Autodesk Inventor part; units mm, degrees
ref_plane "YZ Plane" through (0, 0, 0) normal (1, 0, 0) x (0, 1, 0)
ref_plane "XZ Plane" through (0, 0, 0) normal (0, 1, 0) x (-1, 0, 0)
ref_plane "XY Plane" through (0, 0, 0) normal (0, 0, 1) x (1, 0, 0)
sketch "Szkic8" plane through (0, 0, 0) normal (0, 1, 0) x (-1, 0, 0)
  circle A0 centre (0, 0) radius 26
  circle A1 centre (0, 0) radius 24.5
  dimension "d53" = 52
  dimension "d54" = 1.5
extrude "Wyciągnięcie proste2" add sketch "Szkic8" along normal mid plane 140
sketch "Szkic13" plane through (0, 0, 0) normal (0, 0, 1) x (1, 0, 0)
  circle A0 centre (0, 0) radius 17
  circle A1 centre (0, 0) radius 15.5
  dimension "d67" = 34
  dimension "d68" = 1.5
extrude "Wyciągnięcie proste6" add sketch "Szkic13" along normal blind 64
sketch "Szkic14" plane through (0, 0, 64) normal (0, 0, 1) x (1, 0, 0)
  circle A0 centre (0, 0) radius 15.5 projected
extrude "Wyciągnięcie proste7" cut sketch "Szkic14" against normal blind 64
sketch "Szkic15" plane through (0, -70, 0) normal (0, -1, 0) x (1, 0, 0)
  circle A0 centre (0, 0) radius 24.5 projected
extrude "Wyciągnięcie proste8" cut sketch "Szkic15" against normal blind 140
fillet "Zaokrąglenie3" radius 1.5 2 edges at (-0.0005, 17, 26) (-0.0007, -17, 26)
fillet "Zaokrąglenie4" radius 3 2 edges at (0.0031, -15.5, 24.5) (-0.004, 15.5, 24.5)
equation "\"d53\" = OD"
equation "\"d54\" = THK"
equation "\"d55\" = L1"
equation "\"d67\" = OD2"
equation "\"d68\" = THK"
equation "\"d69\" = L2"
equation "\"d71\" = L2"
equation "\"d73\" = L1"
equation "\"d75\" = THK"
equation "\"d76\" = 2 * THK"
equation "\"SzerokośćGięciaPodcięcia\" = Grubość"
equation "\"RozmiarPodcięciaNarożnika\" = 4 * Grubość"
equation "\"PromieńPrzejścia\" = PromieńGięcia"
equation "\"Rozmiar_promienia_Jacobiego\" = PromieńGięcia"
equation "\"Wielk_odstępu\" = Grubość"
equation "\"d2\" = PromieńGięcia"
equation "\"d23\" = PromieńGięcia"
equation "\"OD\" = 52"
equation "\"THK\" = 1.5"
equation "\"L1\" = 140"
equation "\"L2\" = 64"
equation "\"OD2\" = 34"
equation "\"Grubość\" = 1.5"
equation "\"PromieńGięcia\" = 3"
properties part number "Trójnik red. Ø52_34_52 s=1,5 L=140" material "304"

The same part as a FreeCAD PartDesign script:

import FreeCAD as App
import Part
import Sketcher
from FreeCAD import Vector
Q = App.Units.Quantity


def edges_at(feature, points):
    """Names of the edges that pass closest to the given points."""
    edges = feature.Shape.Edges
    near = lambda p: min(range(len(edges)), key=lambda i: edges[i].distToShape(Part.Vertex(*p))[0])
    return sorted({f"Edge{near(p) + 1}" for p in points})

doc = App.newDocument("Part")
body = doc.addObject("PartDesign::Body", "Body")

# Sketch on XZ plane
sketch1 = body.newObject("Sketcher::SketchObject", "Sketch")
sketch1.AttachmentSupport = (doc.getObject("XZ_Plane"), [""])
sketch1.MapMode = "FlatFace"
sketch1.addGeometry(Part.Circle(Vector(0, 0, 0), Vector(0, 0, 1), 26), False)
sketch1.addGeometry(Part.Circle(Vector(0, 0, 0), Vector(0, 0, 1), 24), False)
sketch1.addConstraint(Sketcher.Constraint("Coincident", 0, 3, -1, 1))
sketch1.addConstraint(Sketcher.Constraint("Coincident", 1, 3, -1, 1))
sketch1.addConstraint(Sketcher.Constraint("Diameter", 0, Q("52 mm")))
sketch1.addConstraint(Sketcher.Constraint("Diameter", 1, Q("49 mm")))
pad1 = body.newObject("PartDesign::Pad", "Pad")
pad1.Profile = sketch1
pad1.Length = 140
pad1.Midplane = True

# Sketch on XY plane
sketch2 = body.newObject("Sketcher::SketchObject", "Sketch001")
sketch2.AttachmentSupport = (doc.getObject("XY_Plane"), [""])
sketch2.MapMode = "FlatFace"
sketch2.addGeometry(Part.Circle(Vector(0, 0, 0), Vector(0, 0, 1), 17), False)
sketch2.addGeometry(Part.Circle(Vector(0, 0, 0), Vector(0, 0, 1), 16), False)
sketch2.addConstraint(Sketcher.Constraint("Coincident", 0, 3, -1, 1))
sketch2.addConstraint(Sketcher.Constraint("Coincident", 1, 3, -1, 1))
sketch2.addConstraint(Sketcher.Constraint("Diameter", 0, Q("34 mm")))
sketch2.addConstraint(Sketcher.Constraint("Diameter", 1, Q("31 mm")))
pad2 = body.newObject("PartDesign::Pad", "Pad001")
pad2.Profile = sketch2
pad2.Length = 64

# Sketch on XY plane
sketch3 = body.newObject("Sketcher::SketchObject", "Sketch002")
sketch3.AttachmentSupport = (doc.getObject("XY_Plane"), [""])
sketch3.MapMode = "FlatFace"
sketch3.AttachmentOffset = App.Placement(Vector(0, 0, 64), App.Rotation())
sketch3.addGeometry(Part.Circle(Vector(0, 0, 0), Vector(0, 0, 1), 16), False)
sketch3.addConstraint(Sketcher.Constraint("Coincident", 0, 3, -1, 1))
sketch3.addConstraint(Sketcher.Constraint("Diameter", 0, Q("31 mm")))
pocket1 = body.newObject("PartDesign::Pocket", "Pocket")
pocket1.Profile = sketch3
pocket1.Length = 64

# Sketch on XZ plane
sketch4 = body.newObject("Sketcher::SketchObject", "Sketch003")
sketch4.AttachmentSupport = (doc.getObject("XZ_Plane"), [""])
sketch4.MapMode = "FlatFace"
sketch4.AttachmentOffset = App.Placement(Vector(0, 0, 70), App.Rotation())
sketch4.addGeometry(Part.Circle(Vector(0, 0, 0), Vector(0, 0, 1), 24), False)
sketch4.addConstraint(Sketcher.Constraint("Coincident", 0, 3, -1, 1))
sketch4.addConstraint(Sketcher.Constraint("Diameter", 0, Q("49 mm")))
pocket2 = body.newObject("PartDesign::Pocket", "Pocket001")
pocket2.Profile = sketch4
pocket2.Length = 140
doc.recompute()

fillet = body.newObject("PartDesign::Fillet", "Fillet")
fillet.Base = (pocket2, edges_at(pocket2, [(-0.001, 17, 26), (-0.001, -17, 26)]))
fillet.Radius = 1.5
doc.recompute()

fillet2 = body.newObject("PartDesign::Fillet", "Fillet001")
fillet2.Base = (fillet, edges_at(fillet, [(0.003, -15.5, 24.5), (-0.004, 15.5, 24.5)]))
fillet2.Radius = 3

doc.recompute()
